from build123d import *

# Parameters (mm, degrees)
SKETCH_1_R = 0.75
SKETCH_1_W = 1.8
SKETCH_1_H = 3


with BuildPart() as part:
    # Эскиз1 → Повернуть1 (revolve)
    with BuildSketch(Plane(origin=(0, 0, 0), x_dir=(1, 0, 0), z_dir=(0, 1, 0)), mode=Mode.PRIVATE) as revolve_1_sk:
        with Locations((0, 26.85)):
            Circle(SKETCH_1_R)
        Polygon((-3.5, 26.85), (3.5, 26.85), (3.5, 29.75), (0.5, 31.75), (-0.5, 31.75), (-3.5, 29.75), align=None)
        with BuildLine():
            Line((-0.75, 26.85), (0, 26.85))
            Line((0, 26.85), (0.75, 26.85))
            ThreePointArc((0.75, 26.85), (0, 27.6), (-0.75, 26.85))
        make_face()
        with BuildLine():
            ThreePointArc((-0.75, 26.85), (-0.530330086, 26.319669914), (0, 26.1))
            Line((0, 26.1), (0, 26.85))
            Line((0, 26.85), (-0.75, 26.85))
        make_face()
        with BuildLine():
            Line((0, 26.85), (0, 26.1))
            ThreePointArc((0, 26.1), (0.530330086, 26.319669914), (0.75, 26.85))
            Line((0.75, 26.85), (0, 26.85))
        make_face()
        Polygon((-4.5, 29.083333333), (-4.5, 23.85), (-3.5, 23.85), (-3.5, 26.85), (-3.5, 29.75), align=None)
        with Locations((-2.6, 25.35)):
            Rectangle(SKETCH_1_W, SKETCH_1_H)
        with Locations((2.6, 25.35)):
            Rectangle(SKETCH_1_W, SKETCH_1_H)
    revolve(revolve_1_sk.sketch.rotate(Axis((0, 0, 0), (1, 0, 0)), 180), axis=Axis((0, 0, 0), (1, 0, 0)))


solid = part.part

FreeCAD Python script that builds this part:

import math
import FreeCAD as App
import Part
import Sketcher

V = App.Vector

doc = App.newDocument("Part")
body = doc.addObject("PartDesign::Body", "Body")

sketch1 = body.newObject("Sketcher::SketchObject", "Sketch")
sketch1.AttachmentSupport = (doc.getObject("XZ_Plane"), [""])
sketch1.MapMode = "FlatFace"
sketch1.addGeometry([
    Part.LineSegment(V(-0.5, -31.8, 0), V(-3.5, -29.8, 0)),
    Part.LineSegment(V(-3.5, -29.8, 0), V(-4.5, -29.1, 0)),
    Part.LineSegment(V(-4.5, -29.1, 0), V(-4.5, -23.9, 0)),
    Part.LineSegment(V(-4.5, -23.9, 0), V(-1.7, -23.9, 0)),
    Part.LineSegment(V(-1.7, -23.9, 0), V(-1.7, -26.9, 0)),
    Part.LineSegment(V(-1.7, -26.9, 0), V(-0.8, -26.9, 0)),
    Part.ArcOfCircle(Part.Circle(V(0, -26.9, 0), V(0, 0, 1), 0.8), math.radians(0), math.radians(180)),
    Part.LineSegment(V(0.8, -26.9, 0), V(1.7, -26.9, 0)),
    Part.LineSegment(V(1.7, -26.9, 0), V(1.7, -23.9, 0)),
    Part.LineSegment(V(1.7, -23.9, 0), V(3.5, -23.9, 0)),
    Part.LineSegment(V(3.5, -23.9, 0), V(3.5, -29.8, 0)),
    Part.LineSegment(V(3.5, -29.8, 0), V(0.5, -31.8, 0)),
    Part.LineSegment(V(0.5, -31.8, 0), V(-0.5, -31.8, 0)),
], False)
sketch1.addConstraint([
    Sketcher.Constraint("Coincident", 0, 2, 1, 1),
    Sketcher.Constraint("Coincident", 1, 2, 2, 1),
    Sketcher.Constraint("Coincident", 2, 2, 3, 1),
    Sketcher.Constraint("Coincident", 3, 2, 4, 1),
    Sketcher.Constraint("Coincident", 4, 2, 5, 1),
    Sketcher.Constraint("Coincident", 5, 2, 6, 2),
    Sketcher.Constraint("Coincident", 6, 1, 7, 1),
    Sketcher.Constraint("Coincident", 7, 2, 8, 1),
    Sketcher.Constraint("Coincident", 8, 2, 9, 1),
    Sketcher.Constraint("Coincident", 9, 2, 10, 1),
    Sketcher.Constraint("Coincident", 10, 2, 11, 1),
    Sketcher.Constraint("Coincident", 11, 2, 12, 1),
    Sketcher.Constraint("Coincident", 12, 2, 0, 1),
    Sketcher.Constraint("Vertical", 2),
    Sketcher.Constraint("Horizontal", 3),
    Sketcher.Constraint("Vertical", 4),
    Sketcher.Constraint("Horizontal", 5),
    Sketcher.Constraint("Horizontal", 7),
    Sketcher.Constraint("Vertical", 8),
    Sketcher.Constraint("Horizontal", 9),
    Sketcher.Constraint("Vertical", 10),
    Sketcher.Constraint("Horizontal", 12),
    Sketcher.Constraint("Symmetric", 5, 2, 6, 1, -2),
    Sketcher.Constraint("Symmetric", 3, 2, 8, 2, -2),
    Sketcher.Constraint("Symmetric", 0, 2, 10, 2, -2),
    Sketcher.Constraint("Parallel", 0, 1),
    Sketcher.Constraint("Horizontal", 6, 3, 4, 2),
    Sketcher.Constraint("Equal", 0, 11),
    Sketcher.Constraint("DistanceX", 12, 2, 12, 1, 1.0),
    Sketcher.Constraint("DistanceY", 4, 2, 4, 1, 3.0),
    Sketcher.Constraint("Radius", 6, 0.75),
    Sketcher.Constraint("DistanceX", 3, 1, 3, 2, 2.8),
    Sketcher.Constraint("DistanceX", 9, 1, 9, 2, 1.8),
    Sketcher.Constraint("DistanceY", 10, 2, 10, 1, 5.9),
    Sketcher.Constraint("DistanceX", 11, 2, 10, 2, 3.0),
    Sketcher.Constraint("DistanceY", 11, 2, 10, 2, 2.0),
    Sketcher.Constraint("DistanceY", 6, 3, -1, 1, 26.85),
])
revolution = body.newObject("PartDesign::Revolution", "Revolution")
revolution.Profile = sketch1
revolution.ReferenceAxis = (sketch1, ["H_Axis"])
revolution.Angle = 360

doc.recompute()
